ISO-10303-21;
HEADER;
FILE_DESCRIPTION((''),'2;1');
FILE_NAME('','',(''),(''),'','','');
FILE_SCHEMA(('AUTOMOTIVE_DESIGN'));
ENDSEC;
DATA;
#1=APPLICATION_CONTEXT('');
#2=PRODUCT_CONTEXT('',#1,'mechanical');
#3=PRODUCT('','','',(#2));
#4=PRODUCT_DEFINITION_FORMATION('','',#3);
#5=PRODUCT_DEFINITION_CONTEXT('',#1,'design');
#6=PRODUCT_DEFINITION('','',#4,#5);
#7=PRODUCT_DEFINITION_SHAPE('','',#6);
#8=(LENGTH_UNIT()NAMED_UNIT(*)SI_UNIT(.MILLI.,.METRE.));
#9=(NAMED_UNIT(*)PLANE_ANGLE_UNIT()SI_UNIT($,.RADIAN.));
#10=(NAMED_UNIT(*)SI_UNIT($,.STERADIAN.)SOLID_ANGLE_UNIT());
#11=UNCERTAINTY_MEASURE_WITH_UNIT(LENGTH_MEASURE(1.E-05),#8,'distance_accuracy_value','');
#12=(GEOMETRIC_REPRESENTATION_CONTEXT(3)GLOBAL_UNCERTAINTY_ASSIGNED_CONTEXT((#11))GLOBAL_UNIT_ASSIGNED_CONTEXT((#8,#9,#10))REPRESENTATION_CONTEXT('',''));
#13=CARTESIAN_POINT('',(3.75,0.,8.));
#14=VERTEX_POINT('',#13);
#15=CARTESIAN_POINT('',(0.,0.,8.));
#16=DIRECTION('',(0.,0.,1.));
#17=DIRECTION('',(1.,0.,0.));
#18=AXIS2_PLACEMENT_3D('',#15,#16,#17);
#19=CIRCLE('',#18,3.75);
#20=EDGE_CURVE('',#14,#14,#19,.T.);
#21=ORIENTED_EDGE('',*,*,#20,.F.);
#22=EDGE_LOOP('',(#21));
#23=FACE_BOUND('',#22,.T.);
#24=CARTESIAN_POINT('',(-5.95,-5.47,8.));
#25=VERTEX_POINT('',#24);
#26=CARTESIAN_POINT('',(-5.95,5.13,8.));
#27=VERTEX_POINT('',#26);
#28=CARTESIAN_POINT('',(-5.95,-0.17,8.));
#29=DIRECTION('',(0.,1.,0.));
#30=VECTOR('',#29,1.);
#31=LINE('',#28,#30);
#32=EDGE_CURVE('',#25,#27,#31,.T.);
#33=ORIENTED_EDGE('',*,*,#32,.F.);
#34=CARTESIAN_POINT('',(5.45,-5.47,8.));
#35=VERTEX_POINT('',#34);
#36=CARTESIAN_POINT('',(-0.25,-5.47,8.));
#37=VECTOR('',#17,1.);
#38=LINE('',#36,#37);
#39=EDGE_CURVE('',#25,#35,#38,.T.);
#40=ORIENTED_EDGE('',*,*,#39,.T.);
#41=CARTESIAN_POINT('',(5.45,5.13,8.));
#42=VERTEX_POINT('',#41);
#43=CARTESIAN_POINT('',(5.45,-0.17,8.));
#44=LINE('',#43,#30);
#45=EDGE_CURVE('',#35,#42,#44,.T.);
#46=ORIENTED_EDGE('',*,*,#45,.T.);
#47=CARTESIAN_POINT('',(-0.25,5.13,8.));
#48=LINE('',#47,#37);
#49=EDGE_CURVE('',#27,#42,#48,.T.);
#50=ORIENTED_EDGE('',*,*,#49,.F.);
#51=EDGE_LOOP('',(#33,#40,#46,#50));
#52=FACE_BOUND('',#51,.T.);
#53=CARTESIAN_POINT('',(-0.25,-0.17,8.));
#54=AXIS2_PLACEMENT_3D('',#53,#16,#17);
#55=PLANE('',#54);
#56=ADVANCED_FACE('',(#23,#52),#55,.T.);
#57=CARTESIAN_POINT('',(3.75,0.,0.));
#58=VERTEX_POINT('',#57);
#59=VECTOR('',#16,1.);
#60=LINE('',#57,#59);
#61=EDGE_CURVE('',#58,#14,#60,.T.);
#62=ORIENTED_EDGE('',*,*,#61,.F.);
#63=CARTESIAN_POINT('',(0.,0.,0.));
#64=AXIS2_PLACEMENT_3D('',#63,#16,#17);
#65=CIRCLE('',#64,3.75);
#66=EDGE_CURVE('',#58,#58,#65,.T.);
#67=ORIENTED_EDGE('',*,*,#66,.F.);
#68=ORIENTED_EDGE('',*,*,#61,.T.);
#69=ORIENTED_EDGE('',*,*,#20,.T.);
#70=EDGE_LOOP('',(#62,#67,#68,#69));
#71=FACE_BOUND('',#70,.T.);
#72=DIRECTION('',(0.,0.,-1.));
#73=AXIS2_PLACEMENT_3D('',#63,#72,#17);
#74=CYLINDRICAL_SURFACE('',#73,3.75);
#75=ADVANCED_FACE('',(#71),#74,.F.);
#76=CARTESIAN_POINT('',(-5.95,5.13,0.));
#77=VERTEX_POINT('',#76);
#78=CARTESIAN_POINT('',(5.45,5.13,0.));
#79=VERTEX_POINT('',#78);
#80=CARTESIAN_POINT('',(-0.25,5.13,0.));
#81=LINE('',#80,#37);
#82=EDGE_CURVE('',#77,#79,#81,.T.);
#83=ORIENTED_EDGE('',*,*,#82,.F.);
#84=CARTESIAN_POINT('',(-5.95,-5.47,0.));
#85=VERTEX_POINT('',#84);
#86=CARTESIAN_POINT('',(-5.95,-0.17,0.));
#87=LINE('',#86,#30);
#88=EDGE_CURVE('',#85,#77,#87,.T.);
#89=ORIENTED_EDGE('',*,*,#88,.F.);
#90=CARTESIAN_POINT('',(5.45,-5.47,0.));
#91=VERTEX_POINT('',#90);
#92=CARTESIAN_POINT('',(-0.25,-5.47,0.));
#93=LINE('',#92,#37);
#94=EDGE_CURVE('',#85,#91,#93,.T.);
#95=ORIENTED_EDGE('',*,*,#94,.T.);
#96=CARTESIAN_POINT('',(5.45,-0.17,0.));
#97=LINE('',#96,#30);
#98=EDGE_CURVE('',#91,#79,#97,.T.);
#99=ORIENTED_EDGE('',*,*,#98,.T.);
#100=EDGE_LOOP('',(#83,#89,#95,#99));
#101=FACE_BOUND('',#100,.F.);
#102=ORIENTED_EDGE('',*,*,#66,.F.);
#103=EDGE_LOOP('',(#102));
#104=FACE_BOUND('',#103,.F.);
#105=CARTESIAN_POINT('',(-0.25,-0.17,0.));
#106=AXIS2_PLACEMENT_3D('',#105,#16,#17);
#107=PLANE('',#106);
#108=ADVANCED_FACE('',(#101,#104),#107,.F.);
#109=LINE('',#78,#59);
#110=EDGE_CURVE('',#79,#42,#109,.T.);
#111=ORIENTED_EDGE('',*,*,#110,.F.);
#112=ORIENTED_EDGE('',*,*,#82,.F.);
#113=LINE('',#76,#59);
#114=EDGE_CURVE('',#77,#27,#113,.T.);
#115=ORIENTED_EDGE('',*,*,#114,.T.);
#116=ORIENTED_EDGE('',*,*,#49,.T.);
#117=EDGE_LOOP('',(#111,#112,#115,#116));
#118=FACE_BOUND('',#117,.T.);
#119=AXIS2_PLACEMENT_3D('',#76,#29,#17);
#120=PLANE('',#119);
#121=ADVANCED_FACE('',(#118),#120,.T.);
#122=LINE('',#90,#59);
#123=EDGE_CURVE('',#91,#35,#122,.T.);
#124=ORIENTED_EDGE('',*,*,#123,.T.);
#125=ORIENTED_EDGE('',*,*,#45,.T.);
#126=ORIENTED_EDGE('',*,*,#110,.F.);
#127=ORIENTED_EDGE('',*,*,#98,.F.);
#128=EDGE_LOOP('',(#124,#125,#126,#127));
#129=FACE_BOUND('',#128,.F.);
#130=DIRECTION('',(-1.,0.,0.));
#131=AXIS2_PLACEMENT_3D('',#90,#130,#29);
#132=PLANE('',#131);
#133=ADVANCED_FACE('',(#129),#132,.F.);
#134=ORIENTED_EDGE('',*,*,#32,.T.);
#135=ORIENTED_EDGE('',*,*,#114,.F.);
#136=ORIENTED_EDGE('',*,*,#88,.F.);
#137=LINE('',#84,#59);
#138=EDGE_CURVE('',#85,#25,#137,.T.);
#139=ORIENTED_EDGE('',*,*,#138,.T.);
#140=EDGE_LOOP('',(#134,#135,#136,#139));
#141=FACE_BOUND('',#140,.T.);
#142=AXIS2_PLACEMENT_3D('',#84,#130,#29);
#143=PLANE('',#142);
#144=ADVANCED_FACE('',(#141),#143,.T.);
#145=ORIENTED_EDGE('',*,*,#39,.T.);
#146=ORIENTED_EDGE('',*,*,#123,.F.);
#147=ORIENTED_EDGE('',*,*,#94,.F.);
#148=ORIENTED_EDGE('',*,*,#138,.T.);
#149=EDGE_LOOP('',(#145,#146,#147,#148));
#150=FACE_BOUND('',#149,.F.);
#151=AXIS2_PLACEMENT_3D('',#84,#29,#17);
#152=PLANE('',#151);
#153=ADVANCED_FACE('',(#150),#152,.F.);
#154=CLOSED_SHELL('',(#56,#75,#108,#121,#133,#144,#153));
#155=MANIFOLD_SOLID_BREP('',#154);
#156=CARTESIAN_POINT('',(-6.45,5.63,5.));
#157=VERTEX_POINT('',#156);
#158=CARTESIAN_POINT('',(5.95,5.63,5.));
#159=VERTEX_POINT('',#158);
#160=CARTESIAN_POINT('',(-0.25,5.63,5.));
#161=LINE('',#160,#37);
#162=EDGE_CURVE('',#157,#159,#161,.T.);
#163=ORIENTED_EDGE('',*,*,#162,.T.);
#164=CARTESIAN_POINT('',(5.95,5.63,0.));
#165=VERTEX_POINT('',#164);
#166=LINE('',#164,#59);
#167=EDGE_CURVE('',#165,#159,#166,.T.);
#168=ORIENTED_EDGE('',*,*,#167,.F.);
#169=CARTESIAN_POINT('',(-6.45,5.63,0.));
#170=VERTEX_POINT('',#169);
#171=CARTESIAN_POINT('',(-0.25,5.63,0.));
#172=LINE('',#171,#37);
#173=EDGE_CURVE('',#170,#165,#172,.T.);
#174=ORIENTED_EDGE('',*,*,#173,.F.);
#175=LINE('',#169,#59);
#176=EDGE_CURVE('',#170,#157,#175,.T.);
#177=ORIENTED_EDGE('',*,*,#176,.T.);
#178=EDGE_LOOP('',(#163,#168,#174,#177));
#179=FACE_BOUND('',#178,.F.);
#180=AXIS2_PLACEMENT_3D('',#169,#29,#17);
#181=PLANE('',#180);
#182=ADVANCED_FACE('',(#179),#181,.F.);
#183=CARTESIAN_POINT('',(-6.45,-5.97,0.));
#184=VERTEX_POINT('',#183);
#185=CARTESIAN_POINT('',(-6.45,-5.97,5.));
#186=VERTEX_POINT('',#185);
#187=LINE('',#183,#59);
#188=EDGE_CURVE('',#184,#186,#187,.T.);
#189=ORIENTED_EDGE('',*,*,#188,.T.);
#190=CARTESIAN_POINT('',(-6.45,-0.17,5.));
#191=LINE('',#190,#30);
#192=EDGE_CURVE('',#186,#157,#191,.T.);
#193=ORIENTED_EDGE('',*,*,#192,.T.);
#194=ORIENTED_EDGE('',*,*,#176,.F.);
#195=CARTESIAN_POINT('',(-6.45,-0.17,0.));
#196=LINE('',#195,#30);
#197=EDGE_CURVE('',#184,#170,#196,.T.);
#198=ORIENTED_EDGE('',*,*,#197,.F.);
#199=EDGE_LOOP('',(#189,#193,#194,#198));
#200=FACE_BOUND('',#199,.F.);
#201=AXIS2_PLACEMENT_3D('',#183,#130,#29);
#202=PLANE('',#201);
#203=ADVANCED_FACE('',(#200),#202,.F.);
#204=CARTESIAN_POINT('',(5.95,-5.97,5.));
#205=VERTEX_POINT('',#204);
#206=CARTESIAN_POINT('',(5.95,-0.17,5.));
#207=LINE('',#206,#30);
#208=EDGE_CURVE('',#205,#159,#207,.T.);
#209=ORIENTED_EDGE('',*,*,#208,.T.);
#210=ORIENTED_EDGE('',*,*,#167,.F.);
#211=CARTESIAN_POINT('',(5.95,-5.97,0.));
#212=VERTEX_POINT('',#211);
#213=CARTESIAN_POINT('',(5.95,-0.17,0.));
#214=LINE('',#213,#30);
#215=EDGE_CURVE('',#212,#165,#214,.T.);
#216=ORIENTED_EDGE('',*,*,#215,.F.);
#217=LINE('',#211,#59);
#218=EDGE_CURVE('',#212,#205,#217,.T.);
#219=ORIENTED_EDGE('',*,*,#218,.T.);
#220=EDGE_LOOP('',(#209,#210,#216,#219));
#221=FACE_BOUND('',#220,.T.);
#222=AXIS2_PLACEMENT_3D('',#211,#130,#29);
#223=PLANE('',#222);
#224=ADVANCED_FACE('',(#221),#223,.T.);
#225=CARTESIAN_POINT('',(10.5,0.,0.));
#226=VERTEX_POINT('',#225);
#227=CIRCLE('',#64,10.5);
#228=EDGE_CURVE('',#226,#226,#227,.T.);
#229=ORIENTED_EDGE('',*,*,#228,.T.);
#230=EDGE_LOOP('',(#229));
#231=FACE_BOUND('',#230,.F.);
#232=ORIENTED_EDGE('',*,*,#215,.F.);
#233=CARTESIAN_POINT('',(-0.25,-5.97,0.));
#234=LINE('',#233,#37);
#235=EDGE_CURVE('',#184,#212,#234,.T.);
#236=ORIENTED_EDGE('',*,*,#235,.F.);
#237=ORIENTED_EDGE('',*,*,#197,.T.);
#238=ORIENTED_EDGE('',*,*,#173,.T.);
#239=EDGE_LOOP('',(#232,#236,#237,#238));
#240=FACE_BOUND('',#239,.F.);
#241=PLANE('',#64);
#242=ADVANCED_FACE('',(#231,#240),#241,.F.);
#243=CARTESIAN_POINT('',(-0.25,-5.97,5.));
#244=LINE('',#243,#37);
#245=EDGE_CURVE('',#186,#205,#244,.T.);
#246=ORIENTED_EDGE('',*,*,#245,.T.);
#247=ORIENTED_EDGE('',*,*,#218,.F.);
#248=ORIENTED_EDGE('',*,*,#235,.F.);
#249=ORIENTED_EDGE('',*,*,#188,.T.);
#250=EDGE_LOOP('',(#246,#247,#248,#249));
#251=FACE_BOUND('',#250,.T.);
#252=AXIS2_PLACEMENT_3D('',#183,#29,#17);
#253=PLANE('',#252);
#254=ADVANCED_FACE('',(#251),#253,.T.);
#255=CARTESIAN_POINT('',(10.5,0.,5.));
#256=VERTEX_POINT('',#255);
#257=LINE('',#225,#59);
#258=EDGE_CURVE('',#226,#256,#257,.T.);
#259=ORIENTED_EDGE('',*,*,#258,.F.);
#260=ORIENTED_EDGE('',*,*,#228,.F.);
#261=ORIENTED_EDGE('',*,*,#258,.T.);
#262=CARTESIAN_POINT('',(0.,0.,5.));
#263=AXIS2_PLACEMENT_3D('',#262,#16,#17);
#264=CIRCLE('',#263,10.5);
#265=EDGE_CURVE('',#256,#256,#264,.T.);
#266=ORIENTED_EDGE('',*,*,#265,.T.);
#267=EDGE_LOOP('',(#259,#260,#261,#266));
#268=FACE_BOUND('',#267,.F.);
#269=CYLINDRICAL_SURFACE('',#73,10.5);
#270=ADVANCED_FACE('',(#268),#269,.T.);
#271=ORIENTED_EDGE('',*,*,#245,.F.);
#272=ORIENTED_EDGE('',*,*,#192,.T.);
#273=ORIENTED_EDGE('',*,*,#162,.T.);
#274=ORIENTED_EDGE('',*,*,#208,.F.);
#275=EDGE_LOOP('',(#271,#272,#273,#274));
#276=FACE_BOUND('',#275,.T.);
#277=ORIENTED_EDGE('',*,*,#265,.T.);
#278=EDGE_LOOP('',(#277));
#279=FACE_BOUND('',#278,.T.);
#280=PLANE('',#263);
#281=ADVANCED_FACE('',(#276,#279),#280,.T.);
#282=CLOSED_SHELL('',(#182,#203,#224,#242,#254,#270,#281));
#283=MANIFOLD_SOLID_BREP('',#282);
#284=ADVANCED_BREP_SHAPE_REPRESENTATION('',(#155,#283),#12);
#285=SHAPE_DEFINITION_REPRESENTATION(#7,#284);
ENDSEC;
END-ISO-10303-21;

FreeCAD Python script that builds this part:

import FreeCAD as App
import Part
import Sketcher

V = App.Vector

doc = App.newDocument("Part")
body = doc.addObject("PartDesign::Body", "Body")

sketch1 = body.newObject("Sketcher::SketchObject", "Sketch")
sketch1.AttachmentSupport = (doc.getObject("XY_Plane"), [""])
sketch1.MapMode = "FlatFace"
sketch1.addGeometry([
    Part.LineSegment(V(-6, 5.1, 0), V(-6, -5.5, 0)),
    Part.LineSegment(V(-6, -5.5, 0), V(5.5, -5.5, 0)),
    Part.LineSegment(V(5.5, -5.5, 0), V(5.5, 5.1, 0)),
    Part.LineSegment(V(5.5, 5.1, 0), V(-6, 5.1, 0)),
    Part.Circle(V(0, 0, 0), V(0, 0, 1), 3.8),
], False)
sketch1.addConstraint([
    Sketcher.Constraint("Coincident", 0, 2, 1, 1),
    Sketcher.Constraint("Coincident", 1, 2, 2, 1),
    Sketcher.Constraint("Coincident", 2, 2, 3, 1),
    Sketcher.Constraint("Coincident", 3, 2, 0, 1),
    Sketcher.Constraint("Vertical", 0),
    Sketcher.Constraint("Horizontal", 1),
    Sketcher.Constraint("Vertical", 2),
    Sketcher.Constraint("Horizontal", 3),
    Sketcher.Constraint("Coincident", 4, 3, -1, 1),
    Sketcher.Constraint("Diameter", 4, 7.5),
    Sketcher.Constraint("DistanceX", 1, 1, 1, 2, 11.4),
    Sketcher.Constraint("DistanceY", 0, 2, 0, 1, 10.6),
    Sketcher.Constraint("DistanceX", 0, 2, -1, 1, 5.95),
    Sketcher.Constraint("DistanceY", 0, 2, -1, 1, 5.47),
])
pad1 = body.newObject("PartDesign::Pad", "Pad")
pad1.Profile = sketch1
pad1.Length = 8
body2 = doc.addObject("PartDesign::Body", "Body001")

sketch2 = body2.newObject("Sketcher::SketchObject", "Sketch001")
sketch2.AttachmentSupport = (doc.getObject("XY_Plane001"), [""])
sketch2.MapMode = "FlatFace"
sketch2.addGeometry([
    Part.Circle(V(0, 0, 0), V(0, 0, 1), 10),
    Part.LineSegment(V(6, -6, 0), V(-6, -6, 0)),
    Part.LineSegment(V(-6, -6, 0), V(-6, 6, 0)),
    Part.LineSegment(V(-6, 6, 0), V(6, 6, 0)),
    Part.LineSegment(V(6, 6, 0), V(6, -6, 0)),
], False)
sketch2.addConstraint([
    Sketcher.Constraint("Coincident", 1, 2, 2, 1),
    Sketcher.Constraint("Coincident", 2, 2, 3, 1),
    Sketcher.Constraint("Coincident", 3, 2, 4, 1),
    Sketcher.Constraint("Coincident", 4, 2, 1, 1),
    Sketcher.Constraint("Horizontal", 1),
    Sketcher.Constraint("Vertical", 2),
    Sketcher.Constraint("Horizontal", 3),
    Sketcher.Constraint("Vertical", 4),
    Sketcher.Constraint("Coincident", 0, 3, -1, 1),
    Sketcher.Constraint("Diameter", 0, 21.0),
    Sketcher.Constraint("DistanceX", 1, 2, 1, 1, 12.4),
    Sketcher.Constraint("DistanceY", 2, 1, 2, 2, 11.6),
    Sketcher.Constraint("DistanceX", 1, 2, -1, 1, 6.45),
    Sketcher.Constraint("DistanceY", 1, 2, -1, 1, 5.97),
])
pad2 = body2.newObject("PartDesign::Pad", "Pad001")
pad2.Profile = sketch2
pad2.Length = 5

doc.recompute()
